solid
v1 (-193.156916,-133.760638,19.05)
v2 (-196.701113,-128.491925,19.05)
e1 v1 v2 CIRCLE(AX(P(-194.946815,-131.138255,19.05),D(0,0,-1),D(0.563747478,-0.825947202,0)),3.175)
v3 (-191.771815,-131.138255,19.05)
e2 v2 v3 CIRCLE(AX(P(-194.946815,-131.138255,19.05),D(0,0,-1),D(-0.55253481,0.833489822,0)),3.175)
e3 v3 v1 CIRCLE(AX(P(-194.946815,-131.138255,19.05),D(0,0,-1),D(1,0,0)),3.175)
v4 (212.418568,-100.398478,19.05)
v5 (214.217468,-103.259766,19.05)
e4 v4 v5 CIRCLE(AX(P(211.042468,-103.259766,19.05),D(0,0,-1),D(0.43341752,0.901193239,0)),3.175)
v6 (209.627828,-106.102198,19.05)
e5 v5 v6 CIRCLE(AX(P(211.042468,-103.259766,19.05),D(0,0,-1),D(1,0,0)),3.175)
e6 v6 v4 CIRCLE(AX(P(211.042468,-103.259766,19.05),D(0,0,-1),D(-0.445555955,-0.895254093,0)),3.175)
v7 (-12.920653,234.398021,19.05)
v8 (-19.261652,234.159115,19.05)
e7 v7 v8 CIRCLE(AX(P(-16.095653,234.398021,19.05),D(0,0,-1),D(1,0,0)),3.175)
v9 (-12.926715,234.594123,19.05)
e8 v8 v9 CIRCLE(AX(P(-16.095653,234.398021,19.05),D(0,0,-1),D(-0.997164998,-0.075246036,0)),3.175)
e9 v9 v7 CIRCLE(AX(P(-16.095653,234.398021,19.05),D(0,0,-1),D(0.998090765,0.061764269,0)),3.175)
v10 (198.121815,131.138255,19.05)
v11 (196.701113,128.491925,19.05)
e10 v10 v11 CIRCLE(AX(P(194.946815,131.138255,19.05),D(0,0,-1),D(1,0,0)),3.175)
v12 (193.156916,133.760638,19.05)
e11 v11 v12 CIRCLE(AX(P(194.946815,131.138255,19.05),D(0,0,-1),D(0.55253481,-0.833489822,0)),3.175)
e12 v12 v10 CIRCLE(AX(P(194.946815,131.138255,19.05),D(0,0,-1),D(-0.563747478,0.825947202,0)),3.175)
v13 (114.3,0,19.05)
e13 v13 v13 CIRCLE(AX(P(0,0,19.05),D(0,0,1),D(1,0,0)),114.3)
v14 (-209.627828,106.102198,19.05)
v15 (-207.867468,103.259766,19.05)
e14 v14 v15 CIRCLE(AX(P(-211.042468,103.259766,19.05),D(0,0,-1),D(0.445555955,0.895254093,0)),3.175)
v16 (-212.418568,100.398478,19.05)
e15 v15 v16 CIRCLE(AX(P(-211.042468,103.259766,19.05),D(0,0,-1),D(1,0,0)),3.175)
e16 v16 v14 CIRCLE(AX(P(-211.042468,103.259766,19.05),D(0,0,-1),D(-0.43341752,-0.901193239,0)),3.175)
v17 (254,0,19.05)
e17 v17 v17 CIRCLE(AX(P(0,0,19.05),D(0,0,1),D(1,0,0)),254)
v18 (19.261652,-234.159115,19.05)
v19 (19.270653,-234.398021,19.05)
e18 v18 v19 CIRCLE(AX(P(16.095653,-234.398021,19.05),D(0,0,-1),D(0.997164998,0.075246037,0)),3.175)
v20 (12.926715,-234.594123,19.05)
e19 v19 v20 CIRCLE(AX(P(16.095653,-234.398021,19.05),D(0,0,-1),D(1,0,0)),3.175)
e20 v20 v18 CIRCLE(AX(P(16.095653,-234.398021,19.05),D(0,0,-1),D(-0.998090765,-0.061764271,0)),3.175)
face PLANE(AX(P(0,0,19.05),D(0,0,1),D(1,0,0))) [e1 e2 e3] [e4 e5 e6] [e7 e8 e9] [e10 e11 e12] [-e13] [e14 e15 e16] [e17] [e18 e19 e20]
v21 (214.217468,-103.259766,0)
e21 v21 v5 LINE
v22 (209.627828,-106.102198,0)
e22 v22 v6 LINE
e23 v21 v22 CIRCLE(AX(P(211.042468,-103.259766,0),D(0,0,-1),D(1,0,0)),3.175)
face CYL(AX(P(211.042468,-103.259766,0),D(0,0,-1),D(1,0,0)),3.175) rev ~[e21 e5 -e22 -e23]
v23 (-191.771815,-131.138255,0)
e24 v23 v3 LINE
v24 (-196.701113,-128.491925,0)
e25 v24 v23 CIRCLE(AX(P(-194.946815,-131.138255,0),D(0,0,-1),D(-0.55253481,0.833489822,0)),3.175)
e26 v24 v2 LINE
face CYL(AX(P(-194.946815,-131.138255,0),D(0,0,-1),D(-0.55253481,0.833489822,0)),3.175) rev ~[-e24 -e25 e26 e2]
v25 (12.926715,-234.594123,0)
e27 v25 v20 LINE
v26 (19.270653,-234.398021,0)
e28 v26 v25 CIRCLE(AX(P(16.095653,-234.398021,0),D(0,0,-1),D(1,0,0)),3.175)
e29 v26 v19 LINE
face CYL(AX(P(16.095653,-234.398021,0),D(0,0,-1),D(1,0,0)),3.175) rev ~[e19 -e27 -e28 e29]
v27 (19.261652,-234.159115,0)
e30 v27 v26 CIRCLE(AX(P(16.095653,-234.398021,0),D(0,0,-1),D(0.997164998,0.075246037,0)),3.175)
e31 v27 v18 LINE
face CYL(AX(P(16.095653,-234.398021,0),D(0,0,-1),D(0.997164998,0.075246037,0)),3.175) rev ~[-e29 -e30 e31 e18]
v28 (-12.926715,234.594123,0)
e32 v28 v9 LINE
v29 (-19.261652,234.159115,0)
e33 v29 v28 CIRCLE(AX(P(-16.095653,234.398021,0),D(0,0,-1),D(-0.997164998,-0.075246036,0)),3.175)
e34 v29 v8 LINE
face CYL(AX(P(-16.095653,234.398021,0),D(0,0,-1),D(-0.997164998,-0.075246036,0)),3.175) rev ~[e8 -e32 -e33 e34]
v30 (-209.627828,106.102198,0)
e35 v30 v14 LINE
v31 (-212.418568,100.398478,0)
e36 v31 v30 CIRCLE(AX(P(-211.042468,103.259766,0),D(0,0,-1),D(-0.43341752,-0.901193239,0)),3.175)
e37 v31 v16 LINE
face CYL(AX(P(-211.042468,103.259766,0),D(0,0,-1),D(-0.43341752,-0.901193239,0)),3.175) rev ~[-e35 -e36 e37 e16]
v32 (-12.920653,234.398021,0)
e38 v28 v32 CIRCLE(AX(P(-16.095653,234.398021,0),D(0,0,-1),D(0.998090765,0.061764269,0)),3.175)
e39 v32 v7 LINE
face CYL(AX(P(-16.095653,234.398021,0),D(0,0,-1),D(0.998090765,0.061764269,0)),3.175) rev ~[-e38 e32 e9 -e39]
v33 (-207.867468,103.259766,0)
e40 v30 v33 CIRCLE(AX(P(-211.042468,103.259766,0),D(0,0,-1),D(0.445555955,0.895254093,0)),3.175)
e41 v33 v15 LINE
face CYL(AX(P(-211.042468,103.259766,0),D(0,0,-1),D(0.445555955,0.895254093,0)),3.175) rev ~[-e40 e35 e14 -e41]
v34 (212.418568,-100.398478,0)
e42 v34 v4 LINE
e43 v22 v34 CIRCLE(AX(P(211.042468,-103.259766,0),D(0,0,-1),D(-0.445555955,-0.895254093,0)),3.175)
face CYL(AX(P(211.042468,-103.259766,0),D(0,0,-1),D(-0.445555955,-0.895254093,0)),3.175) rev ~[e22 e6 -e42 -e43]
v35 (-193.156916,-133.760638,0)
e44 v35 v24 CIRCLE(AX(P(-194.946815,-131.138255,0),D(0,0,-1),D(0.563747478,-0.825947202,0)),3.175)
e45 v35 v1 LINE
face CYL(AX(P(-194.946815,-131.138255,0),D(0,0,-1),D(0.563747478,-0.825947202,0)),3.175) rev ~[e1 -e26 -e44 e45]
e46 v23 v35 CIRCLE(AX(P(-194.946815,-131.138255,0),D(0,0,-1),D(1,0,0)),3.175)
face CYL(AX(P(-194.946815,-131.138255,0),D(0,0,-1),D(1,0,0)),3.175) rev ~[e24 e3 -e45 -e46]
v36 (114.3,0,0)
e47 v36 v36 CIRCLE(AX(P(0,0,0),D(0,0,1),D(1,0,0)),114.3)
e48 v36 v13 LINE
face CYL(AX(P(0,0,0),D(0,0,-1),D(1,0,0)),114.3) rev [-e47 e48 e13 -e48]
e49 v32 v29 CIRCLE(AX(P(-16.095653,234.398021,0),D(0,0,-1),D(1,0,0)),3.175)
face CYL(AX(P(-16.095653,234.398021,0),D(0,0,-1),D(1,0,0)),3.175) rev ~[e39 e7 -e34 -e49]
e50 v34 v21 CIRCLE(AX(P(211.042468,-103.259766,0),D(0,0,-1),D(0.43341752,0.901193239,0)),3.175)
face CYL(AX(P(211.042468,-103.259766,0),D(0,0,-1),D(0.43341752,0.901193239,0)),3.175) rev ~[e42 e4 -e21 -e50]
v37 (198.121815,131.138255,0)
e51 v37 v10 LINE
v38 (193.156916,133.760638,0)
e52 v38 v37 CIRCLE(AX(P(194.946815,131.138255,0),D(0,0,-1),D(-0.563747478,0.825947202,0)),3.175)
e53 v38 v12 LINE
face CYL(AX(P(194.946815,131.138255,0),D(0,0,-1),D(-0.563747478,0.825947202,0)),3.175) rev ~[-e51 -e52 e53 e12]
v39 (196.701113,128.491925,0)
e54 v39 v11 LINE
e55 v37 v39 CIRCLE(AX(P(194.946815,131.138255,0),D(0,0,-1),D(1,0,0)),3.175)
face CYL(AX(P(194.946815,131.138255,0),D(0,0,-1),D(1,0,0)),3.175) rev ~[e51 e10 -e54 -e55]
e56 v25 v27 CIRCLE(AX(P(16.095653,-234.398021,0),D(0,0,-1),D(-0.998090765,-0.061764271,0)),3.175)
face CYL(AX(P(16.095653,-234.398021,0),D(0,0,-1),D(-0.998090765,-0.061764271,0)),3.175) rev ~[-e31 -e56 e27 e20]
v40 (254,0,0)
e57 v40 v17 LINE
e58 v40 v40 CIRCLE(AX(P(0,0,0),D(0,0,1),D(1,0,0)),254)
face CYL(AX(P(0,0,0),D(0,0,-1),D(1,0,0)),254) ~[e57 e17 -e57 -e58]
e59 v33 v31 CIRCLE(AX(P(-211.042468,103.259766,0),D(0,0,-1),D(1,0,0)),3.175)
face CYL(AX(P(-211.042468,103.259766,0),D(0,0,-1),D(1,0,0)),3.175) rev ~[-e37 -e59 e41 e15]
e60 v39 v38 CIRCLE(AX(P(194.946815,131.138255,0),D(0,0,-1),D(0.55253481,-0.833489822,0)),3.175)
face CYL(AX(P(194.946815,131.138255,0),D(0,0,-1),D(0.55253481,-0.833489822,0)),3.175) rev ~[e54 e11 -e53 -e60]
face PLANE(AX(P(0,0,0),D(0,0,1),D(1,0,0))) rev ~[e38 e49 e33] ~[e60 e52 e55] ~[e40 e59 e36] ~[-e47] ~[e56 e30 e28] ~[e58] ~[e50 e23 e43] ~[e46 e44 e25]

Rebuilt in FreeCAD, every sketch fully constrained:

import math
import FreeCAD as App
import Part
import Sketcher
from FreeCAD import Vector
Q = App.Units.Quantity

doc = App.newDocument("Part")
body = doc.addObject("PartDesign::Body", "Body")

# Sketch on XY plane
sketch1 = body.newObject("Sketcher::SketchObject", "Sketch")
sketch1.AttachmentSupport = (doc.getObject("XY_Plane"), [""])
sketch1.MapMode = "FlatFace"
sketch1.addGeometry([
    Part.Circle(Vector(0, 0, 0), Vector(0, 0, 1), 254),  # 0
    Part.ArcOfCircle(Part.Circle(Vector(-194.95, -131.14, 0), Vector(0, 0, 1), 3.17), math.radians(124), math.radians(304)),  # 1
    Part.ArcOfCircle(Part.Circle(Vector(-194.95, -131.14, 0), Vector(0, 0, 1), 3.17), math.radians(0), math.radians(124)),  # 2
    Part.ArcOfCircle(Part.Circle(Vector(-194.95, -131.14, 0), Vector(0, 0, 1), 3.17), math.radians(-56), math.radians(0)),  # 3
    Part.ArcOfCircle(Part.Circle(Vector(16.1, -234.4, 0), Vector(0, 0, 1), 3.17), math.radians(-176), math.radians(0)),  # 4
    Part.ArcOfCircle(Part.Circle(Vector(16.1, -234.4, 0), Vector(0, 0, 1), 3.17), math.radians(4), math.radians(184)),  # 5
    Part.ArcOfCircle(Part.Circle(Vector(16.1, -234.4, 0), Vector(0, 0, 1), 3.17), math.radians(0), math.radians(4.32)),  # 6
    Part.Circle(Vector(0, 0, 0), Vector(0, 0, 1), 114.3),  # 7
    Part.ArcOfCircle(Part.Circle(Vector(211.04, -103.26, 0), Vector(0, 0, 1), 3.17), math.radians(-116), math.radians(0)),  # 8
    Part.ArcOfCircle(Part.Circle(Vector(211.04, -103.26, 0), Vector(0, 0, 1), 3.17), math.radians(64), math.radians(244)),  # 9
    Part.ArcOfCircle(Part.Circle(Vector(211.04, -103.26, 0), Vector(0, 0, 1), 3.17), math.radians(0), math.radians(64)),  # 10
    Part.ArcOfCircle(Part.Circle(Vector(-211.04, 103.26, 0), Vector(0, 0, 1), 3.17), math.radians(64), math.radians(244)),  # 11
    Part.ArcOfCircle(Part.Circle(Vector(-211.04, 103.26, 0), Vector(0, 0, 1), 3.17), math.radians(0), math.radians(64)),  # 12
    Part.ArcOfCircle(Part.Circle(Vector(-211.04, 103.26, 0), Vector(0, 0, 1), 3.17), math.radians(-116), math.radians(0)),  # 13
    Part.ArcOfCircle(Part.Circle(Vector(-16.1, 234.4, 0), Vector(0, 0, 1), 3.17), math.radians(4), math.radians(184)),  # 14
    Part.ArcOfCircle(Part.Circle(Vector(-16.1, 234.4, 0), Vector(0, 0, 1), 3.18), math.radians(0), math.radians(3.54)),  # 15
    Part.ArcOfCircle(Part.Circle(Vector(-16.1, 234.4, 0), Vector(0, 0, 1), 3.17), math.radians(-176), math.radians(0)),  # 16
    Part.ArcOfCircle(Part.Circle(Vector(194.95, 131.14, 0), Vector(0, 0, 1), 3.17), math.radians(-56), math.radians(0)),  # 17
    Part.ArcOfCircle(Part.Circle(Vector(194.95, 131.14, 0), Vector(0, 0, 1), 3.17), math.radians(124), math.radians(304)),  # 18
    Part.ArcOfCircle(Part.Circle(Vector(194.95, 131.14, 0), Vector(0, 0, 1), 3.17), math.radians(0), math.radians(124)),  # 19
], False)
sketch1.addConstraint([
    Sketcher.Constraint("Tangent", 1, 1, 2, 2),
    Sketcher.Constraint("Tangent", 2, 1, 3, 2),
    Sketcher.Constraint("Tangent", 3, 1, 1, 2),
    Sketcher.Constraint("Tangent", 4, 1, 5, 2),
    Sketcher.Constraint("Tangent", 5, 1, 6, 2),
    Sketcher.Constraint("Tangent", 6, 1, 4, 2),
    Sketcher.Constraint("Tangent", 8, 1, 9, 2),
    Sketcher.Constraint("Tangent", 9, 1, 10, 2),
    Sketcher.Constraint("Tangent", 10, 1, 8, 2),
    Sketcher.Constraint("Tangent", 11, 1, 12, 2),
    Sketcher.Constraint("Tangent", 12, 1, 13, 2),
    Sketcher.Constraint("Tangent", 13, 1, 11, 2),
    Sketcher.Constraint("Tangent", 14, 1, 15, 2),
    Sketcher.Constraint("Tangent", 15, 1, 16, 2),
    Sketcher.Constraint("Tangent", 16, 1, 14, 2),
    Sketcher.Constraint("Tangent", 17, 1, 18, 2),
    Sketcher.Constraint("Tangent", 18, 1, 19, 2),
    Sketcher.Constraint("Tangent", 19, 1, 17, 2),
    Sketcher.Constraint("Coincident", 0, 3, -1, 1),
    Sketcher.Constraint("Coincident", 7, 3, -1, 1),
    Sketcher.Constraint("Equal", 3, 4),
    Sketcher.Constraint("Equal", 6, 8),
    Sketcher.Constraint("Equal", 10, 11),
    Sketcher.Constraint("Equal", 13, 14),
    Sketcher.Constraint("Equal", 16, 17),
    Sketcher.Constraint("Symmetric", 8, 3, 11, 3, -1, 1),
    Sketcher.Constraint("Symmetric", 4, 3, 14, 3, -1, 1),
    Sketcher.Constraint("Symmetric", 1, 3, 17, 3, -1, 1),
    Sketcher.Constraint("Horizontal", 3, 3, 2, 1),
    Sketcher.Constraint("Horizontal", 5, 3, 6, 1),
    Sketcher.Constraint("Horizontal", 9, 3, 10, 1),
    Sketcher.Constraint("Horizontal", 13, 3, 12, 1),
    Sketcher.Constraint("Horizontal", 16, 3, 15, 1),
    Sketcher.Constraint("Horizontal", 18, 3, 19, 1),
    Sketcher.Constraint("Diameter", 0, Q("20 in")),
    Sketcher.Constraint("Diameter", 7, Q("9 in")),
    Sketcher.Constraint("Radius", 1, Q("0.125 in")),
    Sketcher.Constraint("DistanceX", 1, 1, 3, 3, 1.754298),
    Sketcher.Constraint("DistanceX", 3, 1, 2, 1, 1.385102),
    Sketcher.Constraint("DistanceY", 4, 1, 4, 3, 0.196102),
    Sketcher.Constraint("DistanceX", 6, 3, 5, 1, 3.165999),
    Sketcher.Constraint("DistanceX", 8, 3, 9, 1, 1.376101),
    Sketcher.Constraint("DistanceX", 13, 1, 11, 3, 1.376101),
    Sketcher.Constraint("DistanceY", 14, 3, 14, 1, 0.196102),
    Sketcher.Constraint("DistanceX", 16, 1, 15, 3, 3.165999),
    Sketcher.Constraint("DistanceX", 17, 3, 17, 1, 1.754298),
    Sketcher.Constraint("DistanceX", 18, 1, 17, 3, 1.789898),
    Sketcher.Constraint("DistanceY", 4, 3, -1, 1, 234.398021),
    Sketcher.Constraint("DistanceX", -1, 1, 9, 1, 212.418568),
    Sketcher.Constraint("DistanceY", 3, 3, 11, 3, 234.398021),
    Sketcher.Constraint("DistanceX", 2, 1, 4, 1, 204.69853),
    Sketcher.Constraint("DistanceY", 5, 1, 8, 3, 130.899349),
    Sketcher.Constraint("DistanceX", 8, 1, 8, 3, 1.41464),
    Sketcher.Constraint("DistanceX", 11, 3, 11, 1, 1.41464),
    Sketcher.Constraint("DistanceX", 1, 3, -1, 1, 194.946815),
])
pad1 = body.newObject("PartDesign::Pad", "Pad")
pad1.Profile = sketch1
pad1.Length = Q("0.75 in")

doc.recompute()
